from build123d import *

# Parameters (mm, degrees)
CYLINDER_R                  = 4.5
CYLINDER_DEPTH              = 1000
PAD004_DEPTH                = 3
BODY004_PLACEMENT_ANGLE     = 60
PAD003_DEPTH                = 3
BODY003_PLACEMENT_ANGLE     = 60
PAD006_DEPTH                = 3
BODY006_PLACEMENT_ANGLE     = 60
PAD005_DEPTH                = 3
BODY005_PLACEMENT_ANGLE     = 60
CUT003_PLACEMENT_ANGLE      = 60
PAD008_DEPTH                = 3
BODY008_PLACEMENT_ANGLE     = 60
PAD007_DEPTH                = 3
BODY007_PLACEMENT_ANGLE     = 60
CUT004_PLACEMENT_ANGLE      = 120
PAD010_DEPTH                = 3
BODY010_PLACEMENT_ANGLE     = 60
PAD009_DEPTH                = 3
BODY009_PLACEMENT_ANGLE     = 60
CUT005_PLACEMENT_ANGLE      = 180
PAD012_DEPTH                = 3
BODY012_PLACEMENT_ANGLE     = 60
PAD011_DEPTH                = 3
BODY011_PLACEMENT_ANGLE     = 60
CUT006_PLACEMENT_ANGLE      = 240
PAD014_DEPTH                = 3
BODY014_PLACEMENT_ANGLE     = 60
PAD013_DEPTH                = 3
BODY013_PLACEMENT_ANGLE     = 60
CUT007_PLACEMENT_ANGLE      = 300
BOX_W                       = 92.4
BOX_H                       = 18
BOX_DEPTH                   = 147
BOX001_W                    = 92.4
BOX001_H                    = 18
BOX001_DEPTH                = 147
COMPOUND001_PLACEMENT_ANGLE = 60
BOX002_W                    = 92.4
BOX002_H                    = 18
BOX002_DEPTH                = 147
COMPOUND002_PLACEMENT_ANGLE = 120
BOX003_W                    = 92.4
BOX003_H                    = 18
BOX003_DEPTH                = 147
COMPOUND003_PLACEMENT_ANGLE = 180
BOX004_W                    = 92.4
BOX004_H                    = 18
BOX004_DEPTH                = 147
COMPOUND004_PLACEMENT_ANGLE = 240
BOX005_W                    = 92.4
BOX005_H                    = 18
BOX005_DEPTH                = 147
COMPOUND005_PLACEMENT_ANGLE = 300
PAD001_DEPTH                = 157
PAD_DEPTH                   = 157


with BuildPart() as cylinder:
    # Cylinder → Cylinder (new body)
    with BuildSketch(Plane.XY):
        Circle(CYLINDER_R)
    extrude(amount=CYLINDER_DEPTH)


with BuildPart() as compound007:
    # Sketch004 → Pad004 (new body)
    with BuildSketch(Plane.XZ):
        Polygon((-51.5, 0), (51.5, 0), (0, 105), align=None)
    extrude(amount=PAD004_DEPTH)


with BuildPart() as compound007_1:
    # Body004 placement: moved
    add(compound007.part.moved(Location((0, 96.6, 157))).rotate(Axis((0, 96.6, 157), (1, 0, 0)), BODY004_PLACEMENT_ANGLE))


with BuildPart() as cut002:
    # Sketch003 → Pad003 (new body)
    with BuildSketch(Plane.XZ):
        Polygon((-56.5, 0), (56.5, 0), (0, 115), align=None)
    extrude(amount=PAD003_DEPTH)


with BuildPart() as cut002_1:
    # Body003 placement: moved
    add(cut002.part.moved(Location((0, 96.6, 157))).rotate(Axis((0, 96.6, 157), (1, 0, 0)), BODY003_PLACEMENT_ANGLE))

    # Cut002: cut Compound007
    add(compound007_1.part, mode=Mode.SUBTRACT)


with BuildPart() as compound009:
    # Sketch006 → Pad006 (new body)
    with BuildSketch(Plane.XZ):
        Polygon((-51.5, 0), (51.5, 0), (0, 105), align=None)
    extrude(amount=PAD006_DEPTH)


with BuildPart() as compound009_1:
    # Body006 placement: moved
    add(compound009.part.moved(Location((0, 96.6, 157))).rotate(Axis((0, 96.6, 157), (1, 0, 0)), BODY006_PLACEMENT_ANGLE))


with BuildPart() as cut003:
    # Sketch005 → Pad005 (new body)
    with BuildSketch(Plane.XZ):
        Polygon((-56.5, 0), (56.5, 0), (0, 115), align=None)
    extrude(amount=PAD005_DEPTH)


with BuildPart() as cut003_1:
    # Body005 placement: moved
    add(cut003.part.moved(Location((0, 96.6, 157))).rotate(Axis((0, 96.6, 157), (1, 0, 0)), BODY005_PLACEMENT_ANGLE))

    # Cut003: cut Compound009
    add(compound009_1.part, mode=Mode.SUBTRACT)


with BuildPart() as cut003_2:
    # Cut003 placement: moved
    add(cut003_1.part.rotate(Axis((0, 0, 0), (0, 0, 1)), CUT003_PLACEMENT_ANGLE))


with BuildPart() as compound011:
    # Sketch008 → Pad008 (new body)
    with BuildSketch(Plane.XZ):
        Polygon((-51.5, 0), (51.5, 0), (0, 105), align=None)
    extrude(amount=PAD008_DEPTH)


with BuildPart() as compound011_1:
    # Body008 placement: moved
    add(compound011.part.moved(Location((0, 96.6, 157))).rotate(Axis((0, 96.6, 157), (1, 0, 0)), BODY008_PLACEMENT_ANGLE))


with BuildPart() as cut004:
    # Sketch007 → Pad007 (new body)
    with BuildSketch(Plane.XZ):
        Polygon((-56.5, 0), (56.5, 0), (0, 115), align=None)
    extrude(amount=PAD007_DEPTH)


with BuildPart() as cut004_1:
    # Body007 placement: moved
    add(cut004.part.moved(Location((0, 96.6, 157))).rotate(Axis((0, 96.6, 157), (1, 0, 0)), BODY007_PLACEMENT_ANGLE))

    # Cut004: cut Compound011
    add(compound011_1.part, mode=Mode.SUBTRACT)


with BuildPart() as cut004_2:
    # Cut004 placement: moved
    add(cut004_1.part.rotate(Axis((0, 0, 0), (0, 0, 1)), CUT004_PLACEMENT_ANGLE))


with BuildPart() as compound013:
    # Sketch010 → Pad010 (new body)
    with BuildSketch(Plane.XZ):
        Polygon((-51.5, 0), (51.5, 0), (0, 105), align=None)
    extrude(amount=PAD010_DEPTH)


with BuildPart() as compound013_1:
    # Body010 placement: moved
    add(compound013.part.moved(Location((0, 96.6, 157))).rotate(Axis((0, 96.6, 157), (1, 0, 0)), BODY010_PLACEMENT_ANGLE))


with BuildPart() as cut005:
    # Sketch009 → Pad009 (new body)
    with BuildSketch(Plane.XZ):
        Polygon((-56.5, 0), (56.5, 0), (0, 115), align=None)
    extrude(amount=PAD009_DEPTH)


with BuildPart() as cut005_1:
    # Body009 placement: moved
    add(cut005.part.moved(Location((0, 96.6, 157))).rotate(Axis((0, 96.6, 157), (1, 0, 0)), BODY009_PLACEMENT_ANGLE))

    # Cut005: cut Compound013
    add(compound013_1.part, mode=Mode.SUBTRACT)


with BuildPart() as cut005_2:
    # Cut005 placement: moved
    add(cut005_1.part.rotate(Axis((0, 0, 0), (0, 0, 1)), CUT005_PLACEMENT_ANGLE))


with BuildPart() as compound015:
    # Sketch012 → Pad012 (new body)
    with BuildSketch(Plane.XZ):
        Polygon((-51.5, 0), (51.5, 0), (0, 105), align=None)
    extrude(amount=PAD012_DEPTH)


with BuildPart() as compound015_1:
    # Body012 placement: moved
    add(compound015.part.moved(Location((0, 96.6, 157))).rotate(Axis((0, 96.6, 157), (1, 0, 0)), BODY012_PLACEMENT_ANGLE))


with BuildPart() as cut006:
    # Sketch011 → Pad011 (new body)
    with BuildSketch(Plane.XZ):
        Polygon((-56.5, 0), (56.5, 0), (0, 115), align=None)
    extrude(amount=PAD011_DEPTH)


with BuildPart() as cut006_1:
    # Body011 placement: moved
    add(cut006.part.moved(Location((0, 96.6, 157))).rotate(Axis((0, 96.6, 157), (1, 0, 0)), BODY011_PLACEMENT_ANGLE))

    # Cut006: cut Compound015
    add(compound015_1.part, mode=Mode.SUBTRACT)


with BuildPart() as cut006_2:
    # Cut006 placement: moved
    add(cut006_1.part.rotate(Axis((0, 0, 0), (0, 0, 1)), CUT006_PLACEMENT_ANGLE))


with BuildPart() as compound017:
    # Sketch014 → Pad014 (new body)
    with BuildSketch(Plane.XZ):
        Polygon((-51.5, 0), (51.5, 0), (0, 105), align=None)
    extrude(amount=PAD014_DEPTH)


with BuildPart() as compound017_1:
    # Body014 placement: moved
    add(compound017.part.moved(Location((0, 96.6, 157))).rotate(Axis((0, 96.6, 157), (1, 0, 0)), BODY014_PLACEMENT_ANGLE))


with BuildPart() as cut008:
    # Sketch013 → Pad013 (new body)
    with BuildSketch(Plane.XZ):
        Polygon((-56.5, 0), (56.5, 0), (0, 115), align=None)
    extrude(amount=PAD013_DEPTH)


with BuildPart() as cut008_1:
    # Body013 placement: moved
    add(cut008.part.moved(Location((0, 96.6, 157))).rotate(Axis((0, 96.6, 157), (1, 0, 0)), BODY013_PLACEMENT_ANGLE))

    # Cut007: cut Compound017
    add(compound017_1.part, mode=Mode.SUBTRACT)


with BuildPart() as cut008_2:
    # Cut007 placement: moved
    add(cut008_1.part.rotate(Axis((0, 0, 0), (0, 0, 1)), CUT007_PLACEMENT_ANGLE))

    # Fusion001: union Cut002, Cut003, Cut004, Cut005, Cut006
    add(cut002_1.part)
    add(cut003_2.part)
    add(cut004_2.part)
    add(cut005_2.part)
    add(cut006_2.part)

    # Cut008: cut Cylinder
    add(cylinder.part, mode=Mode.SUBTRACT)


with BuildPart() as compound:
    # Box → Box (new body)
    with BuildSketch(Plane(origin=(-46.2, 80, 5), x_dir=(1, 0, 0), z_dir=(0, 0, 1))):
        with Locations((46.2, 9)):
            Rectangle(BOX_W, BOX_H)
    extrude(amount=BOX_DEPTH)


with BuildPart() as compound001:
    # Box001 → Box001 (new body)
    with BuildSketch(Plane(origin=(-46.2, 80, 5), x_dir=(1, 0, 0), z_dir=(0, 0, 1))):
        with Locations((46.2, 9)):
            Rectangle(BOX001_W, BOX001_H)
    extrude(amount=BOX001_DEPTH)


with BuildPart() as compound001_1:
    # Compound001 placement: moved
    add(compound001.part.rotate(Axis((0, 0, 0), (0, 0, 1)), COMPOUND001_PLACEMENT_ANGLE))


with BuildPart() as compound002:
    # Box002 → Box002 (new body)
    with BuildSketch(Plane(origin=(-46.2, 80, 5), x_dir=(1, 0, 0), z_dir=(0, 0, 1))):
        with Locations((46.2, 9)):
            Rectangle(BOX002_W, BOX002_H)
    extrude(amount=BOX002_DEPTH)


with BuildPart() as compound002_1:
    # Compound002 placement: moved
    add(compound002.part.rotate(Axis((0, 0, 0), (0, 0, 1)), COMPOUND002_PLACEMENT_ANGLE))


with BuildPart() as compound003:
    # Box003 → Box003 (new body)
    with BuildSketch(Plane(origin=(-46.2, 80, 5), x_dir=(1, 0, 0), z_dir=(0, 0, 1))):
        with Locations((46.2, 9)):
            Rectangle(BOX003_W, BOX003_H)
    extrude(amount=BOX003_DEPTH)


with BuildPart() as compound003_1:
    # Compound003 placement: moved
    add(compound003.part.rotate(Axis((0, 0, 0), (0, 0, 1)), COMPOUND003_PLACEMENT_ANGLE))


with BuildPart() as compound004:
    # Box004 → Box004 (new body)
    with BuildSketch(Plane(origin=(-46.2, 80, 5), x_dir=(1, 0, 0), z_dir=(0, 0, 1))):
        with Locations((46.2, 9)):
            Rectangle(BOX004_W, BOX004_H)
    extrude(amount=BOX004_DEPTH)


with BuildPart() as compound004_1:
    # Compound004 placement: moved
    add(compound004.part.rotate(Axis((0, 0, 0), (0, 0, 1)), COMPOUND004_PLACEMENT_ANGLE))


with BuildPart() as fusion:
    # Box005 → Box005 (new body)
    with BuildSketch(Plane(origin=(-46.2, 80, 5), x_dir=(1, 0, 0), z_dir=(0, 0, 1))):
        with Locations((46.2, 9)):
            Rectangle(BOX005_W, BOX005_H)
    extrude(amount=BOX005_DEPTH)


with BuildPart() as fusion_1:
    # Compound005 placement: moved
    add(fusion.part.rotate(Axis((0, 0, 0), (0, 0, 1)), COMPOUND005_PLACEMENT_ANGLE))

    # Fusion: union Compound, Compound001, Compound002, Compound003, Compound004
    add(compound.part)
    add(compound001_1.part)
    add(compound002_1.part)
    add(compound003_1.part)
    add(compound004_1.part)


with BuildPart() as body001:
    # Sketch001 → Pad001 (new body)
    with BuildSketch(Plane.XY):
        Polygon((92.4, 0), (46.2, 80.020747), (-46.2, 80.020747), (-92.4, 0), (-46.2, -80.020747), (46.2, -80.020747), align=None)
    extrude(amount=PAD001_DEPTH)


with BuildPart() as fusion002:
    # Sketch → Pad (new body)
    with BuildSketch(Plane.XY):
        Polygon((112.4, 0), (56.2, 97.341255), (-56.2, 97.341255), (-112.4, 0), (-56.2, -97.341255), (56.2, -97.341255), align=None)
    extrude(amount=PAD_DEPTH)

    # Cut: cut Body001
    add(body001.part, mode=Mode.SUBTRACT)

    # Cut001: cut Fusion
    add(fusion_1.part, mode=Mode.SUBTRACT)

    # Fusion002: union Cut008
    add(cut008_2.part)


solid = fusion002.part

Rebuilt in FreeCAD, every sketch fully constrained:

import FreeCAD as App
import Part
import Sketcher
from FreeCAD import Vector
Q = App.Units.Quantity

doc = App.newDocument("Part")
body = doc.addObject("PartDesign::Body", "Body")

# Sketch on XY plane
sketch1 = body.newObject("Sketcher::SketchObject", "Sketch")
sketch1.AttachmentSupport = (doc.getObject("XY_Plane"), [""])
sketch1.MapMode = "FlatFace"
sketch1.addGeometry(Part.Circle(Vector(0, 0, 0), Vector(0, 0, 1), 4.5), False)
sketch1.addConstraint(Sketcher.Constraint("Coincident", 0, 3, -1, 1))
sketch1.addConstraint(Sketcher.Constraint("Diameter", 0, Q("9 mm")))
pad1 = body.newObject("PartDesign::Pad", "Pad")
pad1.Profile = sketch1
pad1.Length = 1000
body2 = doc.addObject("PartDesign::Body", "Body001")

# Sketch on XZ plane
sketch2 = body2.newObject("Sketcher::SketchObject", "Sketch001")
sketch2.AttachmentSupport = (doc.getObject("XZ_Plane001"), [""])
sketch2.MapMode = "FlatFace"
sketch2.addGeometry(Part.LineSegment(Vector(-52, 0, 0), Vector(52, 0, 0)), False)
sketch2.addGeometry(Part.LineSegment(Vector(52, 0, 0), Vector(0, 105, 0)), False)
sketch2.addGeometry(Part.LineSegment(Vector(0, 105, 0), Vector(-52, 0, 0)), False)
sketch2.addConstraint(Sketcher.Constraint("Coincident", 0, 2, 1, 1))
sketch2.addConstraint(Sketcher.Constraint("Coincident", 1, 2, 2, 1))
sketch2.addConstraint(Sketcher.Constraint("Coincident", 2, 2, 0, 1))
sketch2.addConstraint(Sketcher.Constraint("Horizontal", 0))
sketch2.addConstraint(Sketcher.Constraint("Symmetric", 0, 2, 2, 2, -1, 1))
sketch2.addConstraint(Sketcher.Constraint("PointOnObject", 1, 2, -2))
sketch2.addConstraint(Sketcher.Constraint("DistanceX", 0, 1, 0, 2, Q("103 mm")))
sketch2.addConstraint(Sketcher.Constraint("DistanceY", -1, 1, 1, 2, Q("105 mm")))
pad2 = body2.newObject("PartDesign::Pad", "Pad001")
pad2.Profile = sketch2
pad2.Length = 3
body3 = doc.addObject("PartDesign::Body", "Body002")
doc.recompute()

body2.Placement = App.Placement(Vector(0, 96.6, 157), App.Rotation(Vector(1, 0, 0), 60))
boolean = body3.newObject("PartDesign::Boolean", "Boolean")
boolean.Type = "Fuse"
boolean.addObjects([body2])
body4 = doc.addObject("PartDesign::Body", "Body003")

# Sketch on XZ plane
sketch3 = body4.newObject("Sketcher::SketchObject", "Sketch002")
sketch3.AttachmentSupport = (doc.getObject("XZ_Plane003"), [""])
sketch3.MapMode = "FlatFace"
sketch3.addGeometry(Part.LineSegment(Vector(-56, 0, 0), Vector(56, 0, 0)), False)
sketch3.addGeometry(Part.LineSegment(Vector(56, 0, 0), Vector(0, 115, 0)), False)
sketch3.addGeometry(Part.LineSegment(Vector(0, 115, 0), Vector(-56, 0, 0)), False)
sketch3.addConstraint(Sketcher.Constraint("Coincident", 0, 2, 1, 1))
sketch3.addConstraint(Sketcher.Constraint("Coincident", 1, 2, 2, 1))
sketch3.addConstraint(Sketcher.Constraint("Coincident", 2, 2, 0, 1))
sketch3.addConstraint(Sketcher.Constraint("Horizontal", 0))
sketch3.addConstraint(Sketcher.Constraint("Symmetric", 0, 2, 2, 2, -1, 1))
sketch3.addConstraint(Sketcher.Constraint("PointOnObject", 1, 2, -2))
sketch3.addConstraint(Sketcher.Constraint("DistanceX", 0, 1, 0, 2, Q("113 mm")))
sketch3.addConstraint(Sketcher.Constraint("DistanceY", -1, 1, 1, 2, Q("115 mm")))
pad3 = body4.newObject("PartDesign::Pad", "Pad002")
pad3.Profile = sketch3
pad3.Length = 3
body5 = doc.addObject("PartDesign::Body", "Body004")
doc.recompute()

body4.Placement = App.Placement(Vector(0, 96.6, 157), App.Rotation(Vector(1, 0, 0), 60))
boolean2 = body5.newObject("PartDesign::Boolean", "Boolean001")
boolean2.Type = "Fuse"
boolean2.addObjects([body4])
doc.recompute()

boolean3 = body5.newObject("PartDesign::Boolean", "Boolean002")
boolean3.Type = "Cut"
boolean3.addObjects([body3])
body6 = doc.addObject("PartDesign::Body", "Body005")

# Sketch on XZ plane
sketch4 = body6.newObject("Sketcher::SketchObject", "Sketch003")
sketch4.AttachmentSupport = (doc.getObject("XZ_Plane005"), [""])
sketch4.MapMode = "FlatFace"
sketch4.addGeometry(Part.LineSegment(Vector(-52, 0, 0), Vector(52, 0, 0)), False)
sketch4.addGeometry(Part.LineSegment(Vector(52, 0, 0), Vector(0, 105, 0)), False)
sketch4.addGeometry(Part.LineSegment(Vector(0, 105, 0), Vector(-52, 0, 0)), False)
sketch4.addConstraint(Sketcher.Constraint("Coincident", 0, 2, 1, 1))
sketch4.addConstraint(Sketcher.Constraint("Coincident", 1, 2, 2, 1))
sketch4.addConstraint(Sketcher.Constraint("Coincident", 2, 2, 0, 1))
sketch4.addConstraint(Sketcher.Constraint("Horizontal", 0))
sketch4.addConstraint(Sketcher.Constraint("Symmetric", 0, 2, 2, 2, -1, 1))
sketch4.addConstraint(Sketcher.Constraint("PointOnObject", 1, 2, -2))
sketch4.addConstraint(Sketcher.Constraint("DistanceX", 0, 1, 0, 2, Q("103 mm")))
sketch4.addConstraint(Sketcher.Constraint("DistanceY", -1, 1, 1, 2, Q("105 mm")))
pad4 = body6.newObject("PartDesign::Pad", "Pad003")
pad4.Profile = sketch4
pad4.Length = 3
body7 = doc.addObject("PartDesign::Body", "Body006")
doc.recompute()

body6.Placement = App.Placement(Vector(0, 96.6, 157), App.Rotation(Vector(1, 0, 0), 60))
boolean4 = body7.newObject("PartDesign::Boolean", "Boolean003")
boolean4.Type = "Fuse"
boolean4.addObjects([body6])
body8 = doc.addObject("PartDesign::Body", "Body007")

# Sketch on XZ plane
sketch5 = body8.newObject("Sketcher::SketchObject", "Sketch004")
sketch5.AttachmentSupport = (doc.getObject("XZ_Plane007"), [""])
sketch5.MapMode = "FlatFace"
sketch5.addGeometry(Part.LineSegment(Vector(-56, 0, 0), Vector(56, 0, 0)), False)
sketch5.addGeometry(Part.LineSegment(Vector(56, 0, 0), Vector(0, 115, 0)), False)
sketch5.addGeometry(Part.LineSegment(Vector(0, 115, 0), Vector(-56, 0, 0)), False)
sketch5.addConstraint(Sketcher.Constraint("Coincident", 0, 2, 1, 1))
sketch5.addConstraint(Sketcher.Constraint("Coincident", 1, 2, 2, 1))
sketch5.addConstraint(Sketcher.Constraint("Coincident", 2, 2, 0, 1))
sketch5.addConstraint(Sketcher.Constraint("Horizontal", 0))
sketch5.addConstraint(Sketcher.Constraint("Symmetric", 0, 2, 2, 2, -1, 1))
sketch5.addConstraint(Sketcher.Constraint("PointOnObject", 1, 2, -2))
sketch5.addConstraint(Sketcher.Constraint("DistanceX", 0, 1, 0, 2, Q("113 mm")))
sketch5.addConstraint(Sketcher.Constraint("DistanceY", -1, 1, 1, 2, Q("115 mm")))
pad5 = body8.newObject("PartDesign::Pad", "Pad004")
pad5.Profile = sketch5
pad5.Length = 3
body9 = doc.addObject("PartDesign::Body", "Body008")
doc.recompute()

body8.Placement = App.Placement(Vector(0, 96.6, 157), App.Rotation(Vector(1, 0, 0), 60))
boolean5 = body9.newObject("PartDesign::Boolean", "Boolean004")
boolean5.Type = "Fuse"
boolean5.addObjects([body8])
doc.recompute()

boolean6 = body9.newObject("PartDesign::Boolean", "Boolean005")
boolean6.Type = "Cut"
boolean6.addObjects([body7])
body10 = doc.addObject("PartDesign::Body", "Body009")
doc.recompute()

body9.Placement = App.Placement(Vector(0, 0, 0), App.Rotation(Vector(0, 0, 1), 60))
boolean7 = body10.newObject("PartDesign::Boolean", "Boolean006")
boolean7.Type = "Fuse"
boolean7.addObjects([body9])
body11 = doc.addObject("PartDesign::Body", "Body010")

# Sketch on XZ plane
sketch6 = body11.newObject("Sketcher::SketchObject", "Sketch005")
sketch6.AttachmentSupport = (doc.getObject("XZ_Plane010"), [""])
sketch6.MapMode = "FlatFace"
sketch6.addGeometry(Part.LineSegment(Vector(-52, 0, 0), Vector(52, 0, 0)), False)
sketch6.addGeometry(Part.LineSegment(Vector(52, 0, 0), Vector(0, 105, 0)), False)
sketch6.addGeometry(Part.LineSegment(Vector(0, 105, 0), Vector(-52, 0, 0)), False)
sketch6.addConstraint(Sketcher.Constraint("Coincident", 0, 2, 1, 1))
sketch6.addConstraint(Sketcher.Constraint("Coincident", 1, 2, 2, 1))
sketch6.addConstraint(Sketcher.Constraint("Coincident", 2, 2, 0, 1))
sketch6.addConstraint(Sketcher.Constraint("Horizontal", 0))
sketch6.addConstraint(Sketcher.Constraint("Symmetric", 0, 2, 2, 2, -1, 1))
sketch6.addConstraint(Sketcher.Constraint("PointOnObject", 1, 2, -2))
sketch6.addConstraint(Sketcher.Constraint("DistanceX", 0, 1, 0, 2, Q("103 mm")))
sketch6.addConstraint(Sketcher.Constraint("DistanceY", -1, 1, 1, 2, Q("105 mm")))
pad6 = body11.newObject("PartDesign::Pad", "Pad005")
pad6.Profile = sketch6
pad6.Length = 3
body12 = doc.addObject("PartDesign::Body", "Body011")
doc.recompute()

body11.Placement = App.Placement(Vector(0, 96.6, 157), App.Rotation(Vector(1, 0, 0), 60))
boolean8 = body12.newObject("PartDesign::Boolean", "Boolean007")
boolean8.Type = "Fuse"
boolean8.addObjects([body11])
body13 = doc.addObject("PartDesign::Body", "Body012")

# Sketch on XZ plane
sketch7 = body13.newObject("Sketcher::SketchObject", "Sketch006")
sketch7.AttachmentSupport = (doc.getObject("XZ_Plane012"), [""])
sketch7.MapMode = "FlatFace"
sketch7.addGeometry(Part.LineSegment(Vector(-56, 0, 0), Vector(56, 0, 0)), False)
sketch7.addGeometry(Part.LineSegment(Vector(56, 0, 0), Vector(0, 115, 0)), False)
sketch7.addGeometry(Part.LineSegment(Vector(0, 115, 0), Vector(-56, 0, 0)), False)
sketch7.addConstraint(Sketcher.Constraint("Coincident", 0, 2, 1, 1))
sketch7.addConstraint(Sketcher.Constraint("Coincident", 1, 2, 2, 1))
sketch7.addConstraint(Sketcher.Constraint("Coincident", 2, 2, 0, 1))
sketch7.addConstraint(Sketcher.Constraint("Horizontal", 0))
sketch7.addConstraint(Sketcher.Constraint("Symmetric", 0, 2, 2, 2, -1, 1))
sketch7.addConstraint(Sketcher.Constraint("PointOnObject", 1, 2, -2))
sketch7.addConstraint(Sketcher.Constraint("DistanceX", 0, 1, 0, 2, Q("113 mm")))
sketch7.addConstraint(Sketcher.Constraint("DistanceY", -1, 1, 1, 2, Q("115 mm")))
pad7 = body13.newObject("PartDesign::Pad", "Pad006")
pad7.Profile = sketch7
pad7.Length = 3
body14 = doc.addObject("PartDesign::Body", "Body013")
doc.recompute()

body13.Placement = App.Placement(Vector(0, 96.6, 157), App.Rotation(Vector(1, 0, 0), 60))
boolean9 = body14.newObject("PartDesign::Boolean", "Boolean008")
boolean9.Type = "Fuse"
boolean9.addObjects([body13])
doc.recompute()

boolean10 = body14.newObject("PartDesign::Boolean", "Boolean009")
boolean10.Type = "Cut"
boolean10.addObjects([body12])
body15 = doc.addObject("PartDesign::Body", "Body014")
doc.recompute()

body14.Placement = App.Placement(Vector(0, 0, 0), App.Rotation(Vector(0, 0, 1), 120))
boolean11 = body15.newObject("PartDesign::Boolean", "Boolean010")
boolean11.Type = "Fuse"
boolean11.addObjects([body14])
body16 = doc.addObject("PartDesign::Body", "Body015")

# Sketch on XZ plane
sketch8 = body16.newObject("Sketcher::SketchObject", "Sketch007")
sketch8.AttachmentSupport = (doc.getObject("XZ_Plane015"), [""])
sketch8.MapMode = "FlatFace"
sketch8.addGeometry(Part.LineSegment(Vector(-52, 0, 0), Vector(52, 0, 0)), False)
sketch8.addGeometry(Part.LineSegment(Vector(52, 0, 0), Vector(0, 105, 0)), False)
sketch8.addGeometry(Part.LineSegment(Vector(0, 105, 0), Vector(-52, 0, 0)), False)
sketch8.addConstraint(Sketcher.Constraint("Coincident", 0, 2, 1, 1))
sketch8.addConstraint(Sketcher.Constraint("Coincident", 1, 2, 2, 1))
sketch8.addConstraint(Sketcher.Constraint("Coincident", 2, 2, 0, 1))
sketch8.addConstraint(Sketcher.Constraint("Horizontal", 0))
sketch8.addConstraint(Sketcher.Constraint("Symmetric", 0, 2, 2, 2, -1, 1))
sketch8.addConstraint(Sketcher.Constraint("PointOnObject", 1, 2, -2))
sketch8.addConstraint(Sketcher.Constraint("DistanceX", 0, 1, 0, 2, Q("103 mm")))
sketch8.addConstraint(Sketcher.Constraint("DistanceY", -1, 1, 1, 2, Q("105 mm")))
pad8 = body16.newObject("PartDesign::Pad", "Pad007")
pad8.Profile = sketch8
pad8.Length = 3
body17 = doc.addObject("PartDesign::Body", "Body016")
doc.recompute()

body16.Placement = App.Placement(Vector(0, 96.6, 157), App.Rotation(Vector(1, 0, 0), 60))
boolean12 = body17.newObject("PartDesign::Boolean", "Boolean011")
boolean12.Type = "Fuse"
boolean12.addObjects([body16])
body18 = doc.addObject("PartDesign::Body", "Body017")

# Sketch on XZ plane
sketch9 = body18.newObject("Sketcher::SketchObject", "Sketch008")
sketch9.AttachmentSupport = (doc.getObject("XZ_Plane017"), [""])
sketch9.MapMode = "FlatFace"
sketch9.addGeometry(Part.LineSegment(Vector(-56, 0, 0), Vector(56, 0, 0)), False)
sketch9.addGeometry(Part.LineSegment(Vector(56, 0, 0), Vector(0, 115, 0)), False)
sketch9.addGeometry(Part.LineSegment(Vector(0, 115, 0), Vector(-56, 0, 0)), False)
sketch9.addConstraint(Sketcher.Constraint("Coincident", 0, 2, 1, 1))
sketch9.addConstraint(Sketcher.Constraint("Coincident", 1, 2, 2, 1))
sketch9.addConstraint(Sketcher.Constraint("Coincident", 2, 2, 0, 1))
sketch9.addConstraint(Sketcher.Constraint("Horizontal", 0))
sketch9.addConstraint(Sketcher.Constraint("Symmetric", 0, 2, 2, 2, -1, 1))
sketch9.addConstraint(Sketcher.Constraint("PointOnObject", 1, 2, -2))
sketch9.addConstraint(Sketcher.Constraint("DistanceX", 0, 1, 0, 2, Q("113 mm")))
sketch9.addConstraint(Sketcher.Constraint("DistanceY", -1, 1, 1, 2, Q("115 mm")))
pad9 = body18.newObject("PartDesign::Pad", "Pad008")
pad9.Profile = sketch9
pad9.Length = 3
body19 = doc.addObject("PartDesign::Body", "Body018")
doc.recompute()

body18.Placement = App.Placement(Vector(0, 96.6, 157), App.Rotation(Vector(1, 0, 0), 60))
boolean13 = body19.newObject("PartDesign::Boolean", "Boolean012")
boolean13.Type = "Fuse"
boolean13.addObjects([body18])
doc.recompute()

boolean14 = body19.newObject("PartDesign::Boolean", "Boolean013")
boolean14.Type = "Cut"
boolean14.addObjects([body17])
body20 = doc.addObject("PartDesign::Body", "Body019")
doc.recompute()

body19.Placement = App.Placement(Vector(0, 0, 0), App.Rotation(Vector(0, 0, 1), 180))
boolean15 = body20.newObject("PartDesign::Boolean", "Boolean014")
boolean15.Type = "Fuse"
boolean15.addObjects([body19])
body21 = doc.addObject("PartDesign::Body", "Body020")

# Sketch on XZ plane
sketch10 = body21.newObject("Sketcher::SketchObject", "Sketch009")
sketch10.AttachmentSupport = (doc.getObject("XZ_Plane020"), [""])
sketch10.MapMode = "FlatFace"
sketch10.addGeometry(Part.LineSegment(Vector(-52, 0, 0), Vector(52, 0, 0)), False)
sketch10.addGeometry(Part.LineSegment(Vector(52, 0, 0), Vector(0, 105, 0)), False)
sketch10.addGeometry(Part.LineSegment(Vector(0, 105, 0), Vector(-52, 0, 0)), False)
sketch10.addConstraint(Sketcher.Constraint("Coincident", 0, 2, 1, 1))
sketch10.addConstraint(Sketcher.Constraint("Coincident", 1, 2, 2, 1))
sketch10.addConstraint(Sketcher.Constraint("Coincident", 2, 2, 0, 1))
sketch10.addConstraint(Sketcher.Constraint("Horizontal", 0))
sketch10.addConstraint(Sketcher.Constraint("Symmetric", 0, 2, 2, 2, -1, 1))
sketch10.addConstraint(Sketcher.Constraint("PointOnObject", 1, 2, -2))
sketch10.addConstraint(Sketcher.Constraint("DistanceX", 0, 1, 0, 2, Q("103 mm")))
sketch10.addConstraint(Sketcher.Constraint("DistanceY", -1, 1, 1, 2, Q("105 mm")))
pad10 = body21.newObject("PartDesign::Pad", "Pad009")
pad10.Profile = sketch10
pad10.Length = 3
body22 = doc.addObject("PartDesign::Body", "Body021")
doc.recompute()

body21.Placement = App.Placement(Vector(0, 96.6, 157), App.Rotation(Vector(1, 0, 0), 60))
boolean16 = body22.newObject("PartDesign::Boolean", "Boolean015")
boolean16.Type = "Fuse"
boolean16.addObjects([body21])
body23 = doc.addObject("PartDesign::Body", "Body022")

# Sketch on XZ plane
sketch11 = body23.newObject("Sketcher::SketchObject", "Sketch010")
sketch11.AttachmentSupport = (doc.getObject("XZ_Plane022"), [""])
sketch11.MapMode = "FlatFace"
sketch11.addGeometry(Part.LineSegment(Vector(-56, 0, 0), Vector(56, 0, 0)), False)
sketch11.addGeometry(Part.LineSegment(Vector(56, 0, 0), Vector(0, 115, 0)), False)
sketch11.addGeometry(Part.LineSegment(Vector(0, 115, 0), Vector(-56, 0, 0)), False)
sketch11.addConstraint(Sketcher.Constraint("Coincident", 0, 2, 1, 1))
sketch11.addConstraint(Sketcher.Constraint("Coincident", 1, 2, 2, 1))
sketch11.addConstraint(Sketcher.Constraint("Coincident", 2, 2, 0, 1))
sketch11.addConstraint(Sketcher.Constraint("Horizontal", 0))
sketch11.addConstraint(Sketcher.Constraint("Symmetric", 0, 2, 2, 2, -1, 1))
sketch11.addConstraint(Sketcher.Constraint("PointOnObject", 1, 2, -2))
sketch11.addConstraint(Sketcher.Constraint("DistanceX", 0, 1, 0, 2, Q("113 mm")))
sketch11.addConstraint(Sketcher.Constraint("DistanceY", -1, 1, 1, 2, Q("115 mm")))
pad11 = body23.newObject("PartDesign::Pad", "Pad010")
pad11.Profile = sketch11
pad11.Length = 3
body24 = doc.addObject("PartDesign::Body", "Body023")
doc.recompute()

body23.Placement = App.Placement(Vector(0, 96.6, 157), App.Rotation(Vector(1, 0, 0), 60))
boolean17 = body24.newObject("PartDesign::Boolean", "Boolean016")
boolean17.Type = "Fuse"
boolean17.addObjects([body23])
doc.recompute()

boolean18 = body24.newObject("PartDesign::Boolean", "Boolean017")
boolean18.Type = "Cut"
boolean18.addObjects([body22])
body25 = doc.addObject("PartDesign::Body", "Body024")
doc.recompute()

body24.Placement = App.Placement(Vector(0, 0, 0), App.Rotation(Vector(0, 0, 1), 240))
boolean19 = body25.newObject("PartDesign::Boolean", "Boolean018")
boolean19.Type = "Fuse"
boolean19.addObjects([body24])
body26 = doc.addObject("PartDesign::Body", "Body025")

# Sketch on XZ plane
sketch12 = body26.newObject("Sketcher::SketchObject", "Sketch011")
sketch12.AttachmentSupport = (doc.getObject("XZ_Plane025"), [""])
sketch12.MapMode = "FlatFace"
sketch12.addGeometry(Part.LineSegment(Vector(-52, 0, 0), Vector(52, 0, 0)), False)
sketch12.addGeometry(Part.LineSegment(Vector(52, 0, 0), Vector(0, 105, 0)), False)
sketch12.addGeometry(Part.LineSegment(Vector(0, 105, 0), Vector(-52, 0, 0)), False)
sketch12.addConstraint(Sketcher.Constraint("Coincident", 0, 2, 1, 1))
sketch12.addConstraint(Sketcher.Constraint("Coincident", 1, 2, 2, 1))
sketch12.addConstraint(Sketcher.Constraint("Coincident", 2, 2, 0, 1))
sketch12.addConstraint(Sketcher.Constraint("Horizontal", 0))
sketch12.addConstraint(Sketcher.Constraint("Symmetric", 0, 2, 2, 2, -1, 1))
sketch12.addConstraint(Sketcher.Constraint("PointOnObject", 1, 2, -2))
sketch12.addConstraint(Sketcher.Constraint("DistanceX", 0, 1, 0, 2, Q("103 mm")))
sketch12.addConstraint(Sketcher.Constraint("DistanceY", -1, 1, 1, 2, Q("105 mm")))
pad12 = body26.newObject("PartDesign::Pad", "Pad011")
pad12.Profile = sketch12
pad12.Length = 3
body27 = doc.addObject("PartDesign::Body", "Body026")
doc.recompute()

body26.Placement = App.Placement(Vector(0, 96.6, 157), App.Rotation(Vector(1, 0, 0), 60))
boolean20 = body27.newObject("PartDesign::Boolean", "Boolean019")
boolean20.Type = "Fuse"
boolean20.addObjects([body26])
body28 = doc.addObject("PartDesign::Body", "Body027")

# Sketch on XZ plane
sketch13 = body28.newObject("Sketcher::SketchObject", "Sketch012")
sketch13.AttachmentSupport = (doc.getObject("XZ_Plane027"), [""])
sketch13.MapMode = "FlatFace"
sketch13.addGeometry(Part.LineSegment(Vector(-56, 0, 0), Vector(56, 0, 0)), False)
sketch13.addGeometry(Part.LineSegment(Vector(56, 0, 0), Vector(0, 115, 0)), False)
sketch13.addGeometry(Part.LineSegment(Vector(0, 115, 0), Vector(-56, 0, 0)), False)
sketch13.addConstraint(Sketcher.Constraint("Coincident", 0, 2, 1, 1))
sketch13.addConstraint(Sketcher.Constraint("Coincident", 1, 2, 2, 1))
sketch13.addConstraint(Sketcher.Constraint("Coincident", 2, 2, 0, 1))
sketch13.addConstraint(Sketcher.Constraint("Horizontal", 0))
sketch13.addConstraint(Sketcher.Constraint("Symmetric", 0, 2, 2, 2, -1, 1))
sketch13.addConstraint(Sketcher.Constraint("PointOnObject", 1, 2, -2))
sketch13.addConstraint(Sketcher.Constraint("DistanceX", 0, 1, 0, 2, Q("113 mm")))
sketch13.addConstraint(Sketcher.Constraint("DistanceY", -1, 1, 1, 2, Q("115 mm")))
pad13 = body28.newObject("PartDesign::Pad", "Pad012")
pad13.Profile = sketch13
pad13.Length = 3
body29 = doc.addObject("PartDesign::Body", "Body028")
doc.recompute()

body28.Placement = App.Placement(Vector(0, 96.6, 157), App.Rotation(Vector(1, 0, 0), 60))
boolean21 = body29.newObject("PartDesign::Boolean", "Boolean020")
boolean21.Type = "Fuse"
boolean21.addObjects([body28])
doc.recompute()

boolean22 = body29.newObject("PartDesign::Boolean", "Boolean021")
boolean22.Type = "Cut"
boolean22.addObjects([body27])
body30 = doc.addObject("PartDesign::Body", "Body029")
doc.recompute()

body29.Placement = App.Placement(Vector(0, 0, 0), App.Rotation(Vector(0, 0, 1), 300))
boolean23 = body30.newObject("PartDesign::Boolean", "Boolean022")
boolean23.Type = "Fuse"
boolean23.addObjects([body29])
doc.recompute()

boolean24 = body30.newObject("PartDesign::Boolean", "Boolean023")
boolean24.Type = "Fuse"
boolean24.addObjects([body5])
doc.recompute()

boolean25 = body30.newObject("PartDesign::Boolean", "Boolean024")
boolean25.Type = "Fuse"
boolean25.addObjects([body10])
doc.recompute()

boolean26 = body30.newObject("PartDesign::Boolean", "Boolean025")
boolean26.Type = "Fuse"
boolean26.addObjects([body15])
doc.recompute()

boolean27 = body30.newObject("PartDesign::Boolean", "Boolean026")
boolean27.Type = "Fuse"
boolean27.addObjects([body20])
doc.recompute()

boolean28 = body30.newObject("PartDesign::Boolean", "Boolean027")
boolean28.Type = "Fuse"
boolean28.addObjects([body25])
doc.recompute()

boolean29 = body30.newObject("PartDesign::Boolean", "Boolean028")
boolean29.Type = "Cut"
boolean29.addObjects([body])
body31 = doc.addObject("PartDesign::Body", "Body030")

# Sketch on XY plane
sketch14 = body31.newObject("Sketcher::SketchObject", "Sketch013")
sketch14.AttachmentSupport = (doc.getObject("XY_Plane030"), [""])
sketch14.MapMode = "FlatFace"
sketch14.AttachmentOffset = App.Placement(Vector(0, 0, 5), App.Rotation())
sketch14.addGeometry(Part.LineSegment(Vector(-46, 98, 0), Vector(-46, 80, 0)), False)
sketch14.addGeometry(Part.LineSegment(Vector(-46, 80, 0), Vector(46, 80, 0)), False)
sketch14.addGeometry(Part.LineSegment(Vector(46, 80, 0), Vector(46, 98, 0)), False)
sketch14.addGeometry(Part.LineSegment(Vector(46, 98, 0), Vector(-46, 98, 0)), False)
sketch14.addConstraint(Sketcher.Constraint("Coincident", 0, 2, 1, 1))
sketch14.addConstraint(Sketcher.Constraint("Coincident", 1, 2, 2, 1))
sketch14.addConstraint(Sketcher.Constraint("Coincident", 2, 2, 3, 1))
sketch14.addConstraint(Sketcher.Constraint("Coincident", 3, 2, 0, 1))
sketch14.addConstraint(Sketcher.Constraint("Vertical", 0))
sketch14.addConstraint(Sketcher.Constraint("Horizontal", 1))
sketch14.addConstraint(Sketcher.Constraint("Vertical", 2))
sketch14.addConstraint(Sketcher.Constraint("Horizontal", 3))
sketch14.addConstraint(Sketcher.Constraint("DistanceY", 0, 2, 0, 1, Q("18 mm")))
sketch14.addConstraint(Sketcher.Constraint("DistanceX", 1, 1, 1, 2, Q("92.4 mm")))
sketch14.addConstraint(Sketcher.Constraint("DistanceY", -1, 1, 0, 2, Q("80 mm")))
sketch14.addConstraint(Sketcher.Constraint("DistanceX", 0, 2, -1, 1, Q("46.2 mm")))
pad14 = body31.newObject("PartDesign::Pad", "Pad013")
pad14.Profile = sketch14
pad14.Length = 147
body32 = doc.addObject("PartDesign::Body", "Body031")

# Sketch on XY plane
sketch15 = body32.newObject("Sketcher::SketchObject", "Sketch014")
sketch15.AttachmentSupport = (doc.getObject("XY_Plane031"), [""])
sketch15.MapMode = "FlatFace"
sketch15.AttachmentOffset = App.Placement(Vector(0, 0, 5), App.Rotation())
sketch15.addGeometry(Part.LineSegment(Vector(-46, 98, 0), Vector(-46, 80, 0)), False)
sketch15.addGeometry(Part.LineSegment(Vector(-46, 80, 0), Vector(46, 80, 0)), False)
sketch15.addGeometry(Part.LineSegment(Vector(46, 80, 0), Vector(46, 98, 0)), False)
sketch15.addGeometry(Part.LineSegment(Vector(46, 98, 0), Vector(-46, 98, 0)), False)
sketch15.addConstraint(Sketcher.Constraint("Coincident", 0, 2, 1, 1))
sketch15.addConstraint(Sketcher.Constraint("Coincident", 1, 2, 2, 1))
sketch15.addConstraint(Sketcher.Constraint("Coincident", 2, 2, 3, 1))
sketch15.addConstraint(Sketcher.Constraint("Coincident", 3, 2, 0, 1))
sketch15.addConstraint(Sketcher.Constraint("Vertical", 0))
sketch15.addConstraint(Sketcher.Constraint("Horizontal", 1))
sketch15.addConstraint(Sketcher.Constraint("Vertical", 2))
sketch15.addConstraint(Sketcher.Constraint("Horizontal", 3))
sketch15.addConstraint(Sketcher.Constraint("DistanceY", 0, 2, 0, 1, Q("18 mm")))
sketch15.addConstraint(Sketcher.Constraint("DistanceX", 1, 1, 1, 2, Q("92.4 mm")))
sketch15.addConstraint(Sketcher.Constraint("DistanceY", -1, 1, 0, 2, Q("80 mm")))
sketch15.addConstraint(Sketcher.Constraint("DistanceX", 0, 2, -1, 1, Q("46.2 mm")))
pad15 = body32.newObject("PartDesign::Pad", "Pad014")
pad15.Profile = sketch15
pad15.Length = 147
body33 = doc.addObject("PartDesign::Body", "Body032")
doc.recompute()

body32.Placement = App.Placement(Vector(0, 0, 0), App.Rotation(Vector(0, 0, 1), 60))
boolean30 = body33.newObject("PartDesign::Boolean", "Boolean029")
boolean30.Type = "Fuse"
boolean30.addObjects([body32])
body34 = doc.addObject("PartDesign::Body", "Body033")

# Sketch on XY plane
sketch16 = body34.newObject("Sketcher::SketchObject", "Sketch015")
sketch16.AttachmentSupport = (doc.getObject("XY_Plane033"), [""])
sketch16.MapMode = "FlatFace"
sketch16.AttachmentOffset = App.Placement(Vector(0, 0, 5), App.Rotation())
sketch16.addGeometry(Part.LineSegment(Vector(-46, 98, 0), Vector(-46, 80, 0)), False)
sketch16.addGeometry(Part.LineSegment(Vector(-46, 80, 0), Vector(46, 80, 0)), False)
sketch16.addGeometry(Part.LineSegment(Vector(46, 80, 0), Vector(46, 98, 0)), False)
sketch16.addGeometry(Part.LineSegment(Vector(46, 98, 0), Vector(-46, 98, 0)), False)
sketch16.addConstraint(Sketcher.Constraint("Coincident", 0, 2, 1, 1))
sketch16.addConstraint(Sketcher.Constraint("Coincident", 1, 2, 2, 1))
sketch16.addConstraint(Sketcher.Constraint("Coincident", 2, 2, 3, 1))
sketch16.addConstraint(Sketcher.Constraint("Coincident", 3, 2, 0, 1))
sketch16.addConstraint(Sketcher.Constraint("Vertical", 0))
sketch16.addConstraint(Sketcher.Constraint("Horizontal", 1))
sketch16.addConstraint(Sketcher.Constraint("Vertical", 2))
sketch16.addConstraint(Sketcher.Constraint("Horizontal", 3))
sketch16.addConstraint(Sketcher.Constraint("DistanceY", 0, 2, 0, 1, Q("18 mm")))
sketch16.addConstraint(Sketcher.Constraint("DistanceX", 1, 1, 1, 2, Q("92.4 mm")))
sketch16.addConstraint(Sketcher.Constraint("DistanceY", -1, 1, 0, 2, Q("80 mm")))
sketch16.addConstraint(Sketcher.Constraint("DistanceX", 0, 2, -1, 1, Q("46.2 mm")))
pad16 = body34.newObject("PartDesign::Pad", "Pad015")
pad16.Profile = sketch16
pad16.Length = 147
body35 = doc.addObject("PartDesign::Body", "Body034")
doc.recompute()

body34.Placement = App.Placement(Vector(0, 0, 0), App.Rotation(Vector(0, 0, 1), 120))
boolean31 = body35.newObject("PartDesign::Boolean", "Boolean030")
boolean31.Type = "Fuse"
boolean31.addObjects([body34])
body36 = doc.addObject("PartDesign::Body", "Body035")

# Sketch on XY plane
sketch17 = body36.newObject("Sketcher::SketchObject", "Sketch016")
sketch17.AttachmentSupport = (doc.getObject("XY_Plane035"), [""])
sketch17.MapMode = "FlatFace"
sketch17.AttachmentOffset = App.Placement(Vector(0, 0, 5), App.Rotation())
sketch17.addGeometry(Part.LineSegment(Vector(-46, 98, 0), Vector(-46, 80, 0)), False)
sketch17.addGeometry(Part.LineSegment(Vector(-46, 80, 0), Vector(46, 80, 0)), False)
sketch17.addGeometry(Part.LineSegment(Vector(46, 80, 0), Vector(46, 98, 0)), False)
sketch17.addGeometry(Part.LineSegment(Vector(46, 98, 0), Vector(-46, 98, 0)), False)
sketch17.addConstraint(Sketcher.Constraint("Coincident", 0, 2, 1, 1))
sketch17.addConstraint(Sketcher.Constraint("Coincident", 1, 2, 2, 1))
sketch17.addConstraint(Sketcher.Constraint("Coincident", 2, 2, 3, 1))
sketch17.addConstraint(Sketcher.Constraint("Coincident", 3, 2, 0, 1))
sketch17.addConstraint(Sketcher.Constraint("Vertical", 0))
sketch17.addConstraint(Sketcher.Constraint("Horizontal", 1))
sketch17.addConstraint(Sketcher.Constraint("Vertical", 2))
sketch17.addConstraint(Sketcher.Constraint("Horizontal", 3))
sketch17.addConstraint(Sketcher.Constraint("DistanceY", 0, 2, 0, 1, Q("18 mm")))
sketch17.addConstraint(Sketcher.Constraint("DistanceX", 1, 1, 1, 2, Q("92.4 mm")))
sketch17.addConstraint(Sketcher.Constraint("DistanceY", -1, 1, 0, 2, Q("80 mm")))
sketch17.addConstraint(Sketcher.Constraint("DistanceX", 0, 2, -1, 1, Q("46.2 mm")))
pad17 = body36.newObject("PartDesign::Pad", "Pad016")
pad17.Profile = sketch17
pad17.Length = 147
body37 = doc.addObject("PartDesign::Body", "Body036")
doc.recompute()

body36.Placement = App.Placement(Vector(0, 0, 0), App.Rotation(Vector(0, 0, 1), 180))
boolean32 = body37.newObject("PartDesign::Boolean", "Boolean031")
boolean32.Type = "Fuse"
boolean32.addObjects([body36])
body38 = doc.addObject("PartDesign::Body", "Body037")

# Sketch on XY plane
sketch18 = body38.newObject("Sketcher::SketchObject", "Sketch017")
sketch18.AttachmentSupport = (doc.getObject("XY_Plane037"), [""])
sketch18.MapMode = "FlatFace"
sketch18.AttachmentOffset = App.Placement(Vector(0, 0, 5), App.Rotation())
sketch18.addGeometry(Part.LineSegment(Vector(-46, 98, 0), Vector(-46, 80, 0)), False)
sketch18.addGeometry(Part.LineSegment(Vector(-46, 80, 0), Vector(46, 80, 0)), False)
sketch18.addGeometry(Part.LineSegment(Vector(46, 80, 0), Vector(46, 98, 0)), False)
sketch18.addGeometry(Part.LineSegment(Vector(46, 98, 0), Vector(-46, 98, 0)), False)
sketch18.addConstraint(Sketcher.Constraint("Coincident", 0, 2, 1, 1))
sketch18.addConstraint(Sketcher.Constraint("Coincident", 1, 2, 2, 1))
sketch18.addConstraint(Sketcher.Constraint("Coincident", 2, 2, 3, 1))
sketch18.addConstraint(Sketcher.Constraint("Coincident", 3, 2, 0, 1))
sketch18.addConstraint(Sketcher.Constraint("Vertical", 0))
sketch18.addConstraint(Sketcher.Constraint("Horizontal", 1))
sketch18.addConstraint(Sketcher.Constraint("Vertical", 2))
sketch18.addConstraint(Sketcher.Constraint("Horizontal", 3))
sketch18.addConstraint(Sketcher.Constraint("DistanceY", 0, 2, 0, 1, Q("18 mm")))
sketch18.addConstraint(Sketcher.Constraint("DistanceX", 1, 1, 1, 2, Q("92.4 mm")))
sketch18.addConstraint(Sketcher.Constraint("DistanceY", -1, 1, 0, 2, Q("80 mm")))
sketch18.addConstraint(Sketcher.Constraint("DistanceX", 0, 2, -1, 1, Q("46.2 mm")))
pad18 = body38.newObject("PartDesign::Pad", "Pad017")
pad18.Profile = sketch18
pad18.Length = 147
body39 = doc.addObject("PartDesign::Body", "Body038")
doc.recompute()

body38.Placement = App.Placement(Vector(0, 0, 0), App.Rotation(Vector(0, 0, 1), 240))
boolean33 = body39.newObject("PartDesign::Boolean", "Boolean032")
boolean33.Type = "Fuse"
boolean33.addObjects([body38])
body40 = doc.addObject("PartDesign::Body", "Body039")

# Sketch on XY plane
sketch19 = body40.newObject("Sketcher::SketchObject", "Sketch018")
sketch19.AttachmentSupport = (doc.getObject("XY_Plane039"), [""])
sketch19.MapMode = "FlatFace"
sketch19.AttachmentOffset = App.Placement(Vector(0, 0, 5), App.Rotation())
sketch19.addGeometry(Part.LineSegment(Vector(-46, 98, 0), Vector(-46, 80, 0)), False)
sketch19.addGeometry(Part.LineSegment(Vector(-46, 80, 0), Vector(46, 80, 0)), False)
sketch19.addGeometry(Part.LineSegment(Vector(46, 80, 0), Vector(46, 98, 0)), False)
sketch19.addGeometry(Part.LineSegment(Vector(46, 98, 0), Vector(-46, 98, 0)), False)
sketch19.addConstraint(Sketcher.Constraint("Coincident", 0, 2, 1, 1))
sketch19.addConstraint(Sketcher.Constraint("Coincident", 1, 2, 2, 1))
sketch19.addConstraint(Sketcher.Constraint("Coincident", 2, 2, 3, 1))
sketch19.addConstraint(Sketcher.Constraint("Coincident", 3, 2, 0, 1))
sketch19.addConstraint(Sketcher.Constraint("Vertical", 0))
sketch19.addConstraint(Sketcher.Constraint("Horizontal", 1))
sketch19.addConstraint(Sketcher.Constraint("Vertical", 2))
sketch19.addConstraint(Sketcher.Constraint("Horizontal", 3))
sketch19.addConstraint(Sketcher.Constraint("DistanceY", 0, 2, 0, 1, Q("18 mm")))
sketch19.addConstraint(Sketcher.Constraint("DistanceX", 1, 1, 1, 2, Q("92.4 mm")))
sketch19.addConstraint(Sketcher.Constraint("DistanceY", -1, 1, 0, 2, Q("80 mm")))
sketch19.addConstraint(Sketcher.Constraint("DistanceX", 0, 2, -1, 1, Q("46.2 mm")))
pad19 = body40.newObject("PartDesign::Pad", "Pad018")
pad19.Profile = sketch19
pad19.Length = 147
body41 = doc.addObject("PartDesign::Body", "Body040")
doc.recompute()

body40.Placement = App.Placement(Vector(0, 0, 0), App.Rotation(Vector(0, 0, 1), 300))
boolean34 = body41.newObject("PartDesign::Boolean", "Boolean033")
boolean34.Type = "Fuse"
boolean34.addObjects([body40])
doc.recompute()

boolean35 = body41.newObject("PartDesign::Boolean", "Boolean034")
boolean35.Type = "Fuse"
boolean35.addObjects([body31])
doc.recompute()

boolean36 = body41.newObject("PartDesign::Boolean", "Boolean035")
boolean36.Type = "Fuse"
boolean36.addObjects([body33])
doc.recompute()

boolean37 = body41.newObject("PartDesign::Boolean", "Boolean036")
boolean37.Type = "Fuse"
boolean37.addObjects([body35])
doc.recompute()

boolean38 = body41.newObject("PartDesign::Boolean", "Boolean037")
boolean38.Type = "Fuse"
boolean38.addObjects([body37])
doc.recompute()

boolean39 = body41.newObject("PartDesign::Boolean", "Boolean038")
boolean39.Type = "Fuse"
boolean39.addObjects([body39])
body42 = doc.addObject("PartDesign::Body", "Body041")

# Sketch on XY plane
sketch20 = body42.newObject("Sketcher::SketchObject", "Sketch019")
sketch20.AttachmentSupport = (doc.getObject("XY_Plane041"), [""])
sketch20.MapMode = "FlatFace"
sketch20.addGeometry(Part.LineSegment(Vector(92, 0, 0), Vector(46, 80, 0)), False)
sketch20.addGeometry(Part.LineSegment(Vector(46, 80, 0), Vector(-46, 80, 0)), False)
sketch20.addGeometry(Part.LineSegment(Vector(-46, 80, 0), Vector(-92, 0, 0)), False)
sketch20.addGeometry(Part.LineSegment(Vector(-92, 0, 0), Vector(-46, -80, 0)), False)
sketch20.addGeometry(Part.LineSegment(Vector(-46, -80, 0), Vector(46, -80, 0)), False)
sketch20.addGeometry(Part.LineSegment(Vector(46, -80, 0), Vector(92, 0, 0)), False)
sketch20.addConstraint(Sketcher.Constraint("Coincident", 0, 2, 1, 1))
sketch20.addConstraint(Sketcher.Constraint("Coincident", 1, 2, 2, 1))
sketch20.addConstraint(Sketcher.Constraint("Coincident", 2, 2, 3, 1))
sketch20.addConstraint(Sketcher.Constraint("Coincident", 3, 2, 4, 1))
sketch20.addConstraint(Sketcher.Constraint("Coincident", 4, 2, 5, 1))
sketch20.addConstraint(Sketcher.Constraint("Coincident", 5, 2, 0, 1))
sketch20.addConstraint(Sketcher.Constraint("Horizontal", 1))
sketch20.addConstraint(Sketcher.Constraint("Horizontal", 4))
sketch20.addConstraint(Sketcher.Constraint("Symmetric", 0, 2, 3, 2, -1, 1))
sketch20.addConstraint(Sketcher.Constraint("Symmetric", 2, 2, 5, 2, -1, 1))
sketch20.addConstraint(Sketcher.Constraint("PointOnObject", 2, 2, -1))
sketch20.addConstraint(Sketcher.Constraint("Parallel", 2, 5))
sketch20.addConstraint(Sketcher.Constraint("Vertical", 1, 2, 3, 2))
sketch20.addConstraint(Sketcher.Constraint("Angle", 0, Q("120 deg")))
sketch20.addConstraint(Sketcher.Constraint("DistanceX", 1, 2, 1, 1, Q("92.4 mm")))
sketch20.addConstraint(Sketcher.Constraint("Distance", 0, Q("92.4 mm")))
pad20 = body42.newObject("PartDesign::Pad", "Pad019")
pad20.Profile = sketch20
pad20.Length = 157
body43 = doc.addObject("PartDesign::Body", "Body042")

# Sketch on XY plane
sketch21 = body43.newObject("Sketcher::SketchObject", "Sketch020")
sketch21.AttachmentSupport = (doc.getObject("XY_Plane042"), [""])
sketch21.MapMode = "FlatFace"
sketch21.addGeometry(Part.LineSegment(Vector(112, 0, 0), Vector(56, 97, 0)), False)
sketch21.addGeometry(Part.LineSegment(Vector(56, 97, 0), Vector(-56, 97, 0)), False)
sketch21.addGeometry(Part.LineSegment(Vector(-56, 97, 0), Vector(-112, 0, 0)), False)
sketch21.addGeometry(Part.LineSegment(Vector(-112, 0, 0), Vector(-56, -97, 0)), False)
sketch21.addGeometry(Part.LineSegment(Vector(-56, -97, 0), Vector(56, -97, 0)), False)
sketch21.addGeometry(Part.LineSegment(Vector(56, -97, 0), Vector(112, 0, 0)), False)
sketch21.addConstraint(Sketcher.Constraint("Coincident", 0, 2, 1, 1))
sketch21.addConstraint(Sketcher.Constraint("Coincident", 1, 2, 2, 1))
sketch21.addConstraint(Sketcher.Constraint("Coincident", 2, 2, 3, 1))
sketch21.addConstraint(Sketcher.Constraint("Coincident", 3, 2, 4, 1))
sketch21.addConstraint(Sketcher.Constraint("Coincident", 4, 2, 5, 1))
sketch21.addConstraint(Sketcher.Constraint("Coincident", 5, 2, 0, 1))
sketch21.addConstraint(Sketcher.Constraint("Horizontal", 1))
sketch21.addConstraint(Sketcher.Constraint("Horizontal", 4))
sketch21.addConstraint(Sketcher.Constraint("Symmetric", 0, 2, 3, 2, -1, 1))
sketch21.addConstraint(Sketcher.Constraint("Symmetric", 2, 2, 5, 2, -1, 1))
sketch21.addConstraint(Sketcher.Constraint("PointOnObject", 2, 2, -1))
sketch21.addConstraint(Sketcher.Constraint("Parallel", 2, 5))
sketch21.addConstraint(Sketcher.Constraint("Vertical", 1, 2, 3, 2))
sketch21.addConstraint(Sketcher.Constraint("Angle", 0, Q("120 deg")))
sketch21.addConstraint(Sketcher.Constraint("DistanceX", 1, 2, 1, 1, Q("112.4 mm")))
sketch21.addConstraint(Sketcher.Constraint("Distance", 0, Q("112.4 mm")))
pad21 = body43.newObject("PartDesign::Pad", "Pad020")
pad21.Profile = sketch21
pad21.Length = 157
doc.recompute()

boolean40 = body43.newObject("PartDesign::Boolean", "Boolean039")
boolean40.Type = "Cut"
boolean40.addObjects([body42])
doc.recompute()

boolean41 = body43.newObject("PartDesign::Boolean", "Boolean040")
boolean41.Type = "Cut"
boolean41.addObjects([body41])
doc.recompute()

boolean42 = body43.newObject("PartDesign::Boolean", "Boolean041")
boolean42.Type = "Fuse"
boolean42.addObjects([body30])

doc.recompute()
